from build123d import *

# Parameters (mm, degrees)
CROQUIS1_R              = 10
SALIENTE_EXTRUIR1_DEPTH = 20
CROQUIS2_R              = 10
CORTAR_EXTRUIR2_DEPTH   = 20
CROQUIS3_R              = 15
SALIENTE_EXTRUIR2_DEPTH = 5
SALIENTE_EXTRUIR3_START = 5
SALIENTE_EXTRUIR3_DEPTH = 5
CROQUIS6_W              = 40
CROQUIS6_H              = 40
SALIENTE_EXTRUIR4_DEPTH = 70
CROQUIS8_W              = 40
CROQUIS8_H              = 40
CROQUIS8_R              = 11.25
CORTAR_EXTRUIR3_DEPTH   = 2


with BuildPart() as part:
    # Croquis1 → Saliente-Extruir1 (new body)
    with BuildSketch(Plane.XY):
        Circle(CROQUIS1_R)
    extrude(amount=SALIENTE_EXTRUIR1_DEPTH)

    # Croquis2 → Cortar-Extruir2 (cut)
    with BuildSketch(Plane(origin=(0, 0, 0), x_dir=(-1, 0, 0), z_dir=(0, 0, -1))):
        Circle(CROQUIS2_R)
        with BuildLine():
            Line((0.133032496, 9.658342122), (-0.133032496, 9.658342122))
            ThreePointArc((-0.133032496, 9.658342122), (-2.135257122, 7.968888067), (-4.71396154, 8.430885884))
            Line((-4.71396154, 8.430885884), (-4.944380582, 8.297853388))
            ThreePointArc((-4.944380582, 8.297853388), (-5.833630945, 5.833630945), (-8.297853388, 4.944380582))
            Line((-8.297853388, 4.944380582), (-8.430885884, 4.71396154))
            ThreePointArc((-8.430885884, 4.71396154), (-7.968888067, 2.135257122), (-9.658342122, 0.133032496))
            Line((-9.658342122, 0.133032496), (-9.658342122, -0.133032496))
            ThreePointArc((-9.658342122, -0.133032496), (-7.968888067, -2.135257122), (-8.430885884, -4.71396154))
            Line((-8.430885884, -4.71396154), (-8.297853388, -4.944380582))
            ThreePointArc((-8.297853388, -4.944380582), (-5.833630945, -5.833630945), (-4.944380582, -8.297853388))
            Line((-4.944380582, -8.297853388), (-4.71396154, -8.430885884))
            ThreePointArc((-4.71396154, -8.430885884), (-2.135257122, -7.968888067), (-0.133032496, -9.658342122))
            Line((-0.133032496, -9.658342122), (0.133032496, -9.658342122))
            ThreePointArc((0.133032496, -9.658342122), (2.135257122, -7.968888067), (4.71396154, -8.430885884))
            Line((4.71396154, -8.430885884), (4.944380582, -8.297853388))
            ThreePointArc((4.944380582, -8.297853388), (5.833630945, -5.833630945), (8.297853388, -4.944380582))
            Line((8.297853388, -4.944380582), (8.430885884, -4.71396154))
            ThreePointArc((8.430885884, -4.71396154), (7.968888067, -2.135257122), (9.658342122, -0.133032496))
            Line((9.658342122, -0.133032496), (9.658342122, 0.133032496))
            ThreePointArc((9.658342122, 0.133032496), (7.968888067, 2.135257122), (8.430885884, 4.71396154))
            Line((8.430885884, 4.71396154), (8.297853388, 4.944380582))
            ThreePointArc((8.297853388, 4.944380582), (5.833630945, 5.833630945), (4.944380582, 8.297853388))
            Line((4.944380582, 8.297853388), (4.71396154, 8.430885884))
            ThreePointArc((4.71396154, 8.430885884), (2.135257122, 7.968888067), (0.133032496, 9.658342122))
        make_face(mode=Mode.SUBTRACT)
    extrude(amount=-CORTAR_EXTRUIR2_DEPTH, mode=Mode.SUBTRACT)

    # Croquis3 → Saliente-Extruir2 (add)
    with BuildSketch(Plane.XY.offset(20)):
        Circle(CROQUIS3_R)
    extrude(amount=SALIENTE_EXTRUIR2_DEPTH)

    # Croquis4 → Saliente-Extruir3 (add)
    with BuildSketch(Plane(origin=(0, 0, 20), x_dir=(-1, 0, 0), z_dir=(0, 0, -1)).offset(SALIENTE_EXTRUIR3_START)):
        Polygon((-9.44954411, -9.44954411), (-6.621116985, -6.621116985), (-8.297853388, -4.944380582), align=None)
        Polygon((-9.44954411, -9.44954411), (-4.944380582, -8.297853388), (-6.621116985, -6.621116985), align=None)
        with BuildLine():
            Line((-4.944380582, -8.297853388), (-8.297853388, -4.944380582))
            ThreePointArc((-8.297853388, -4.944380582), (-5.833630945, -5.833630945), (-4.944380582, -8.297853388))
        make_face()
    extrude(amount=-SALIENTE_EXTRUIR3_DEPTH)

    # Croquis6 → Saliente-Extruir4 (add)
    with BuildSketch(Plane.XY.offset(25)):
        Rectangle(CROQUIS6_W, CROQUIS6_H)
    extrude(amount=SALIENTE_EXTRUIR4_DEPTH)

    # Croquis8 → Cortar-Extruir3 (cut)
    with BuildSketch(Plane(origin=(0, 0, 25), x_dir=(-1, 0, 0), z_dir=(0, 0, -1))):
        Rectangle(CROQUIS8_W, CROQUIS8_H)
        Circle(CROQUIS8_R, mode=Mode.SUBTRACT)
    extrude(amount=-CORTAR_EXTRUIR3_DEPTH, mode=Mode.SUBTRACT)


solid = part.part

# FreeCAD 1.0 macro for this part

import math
import FreeCAD as App
import Part
import Sketcher
Q = App.Units.Quantity

doc = App.newDocument("Part")
params = doc.addObject("Spreadsheet::Sheet", "Params")
for row, (alias, value) in enumerate([
    ("sketch1_diameter", "20 mm"),
    ("pad1_length", "20 mm"),
    ("sketch2_diameter", "20 mm"),
    ("pocket1_length", "20 mm"),
    ("sketch3_diameter", "30 mm"),
    ("pad2_length", "5 mm"),
    ("pad3_length", "5 mm"),
    ("sketch5_width", "40 mm"),
    ("pad4_length", "70 mm"),
    ("sketch6_diameter", "22.5 mm"),
    ("sketch6_width", "40 mm"),
    ("pocket2_length", "2 mm"),
], start=1):
    params.set(f"A{row}", alias)
    params.set(f"B{row}", "=" + value)
    params.setAlias(f"B{row}", alias)

body = doc.addObject("PartDesign::Body", "Body")

sketch1 = body.newObject("Sketcher::SketchObject", "Sketch")
sketch1.AttachmentSupport = (doc.getObject("XY_Plane"), [""])
sketch1.MapMode = "FlatFace"
sketch1.addGeometry(Part.Circle(App.Vector(0, 0, 0), App.Vector(0, 0, 1), 10), False)
sketch1.addConstraint(Sketcher.Constraint("Coincident", 0, 3, -1, 1))
sketch1.addConstraint(Sketcher.Constraint("Diameter", 0, Q("20 mm")))
sketch1.setExpression("Constraints[1]", "Params.sketch1_diameter")
pad1 = body.newObject("PartDesign::Pad", "Pad")
pad1.Profile = sketch1
pad1.setExpression("Length", "Params.pad1_length")

sketch2 = body.newObject("Sketcher::SketchObject", "Sketch001")
sketch2.AttachmentSupport = (doc.getObject("XY_Plane"), [""])
sketch2.MapMode = "FlatFace"
sketch2.addGeometry(Part.Circle(App.Vector(0, 0, 0), App.Vector(0, 0, 1), 10), False)
sketch2.addGeometry(Part.LineSegment(App.Vector(0.133032, 9.658342, 0), App.Vector(-0.133032, 9.658342, 0)), False)
sketch2.addGeometry(Part.ArcOfCircle(Part.Circle(App.Vector(-2.93276, 10.94521, 0), App.Vector(0, 0, 1), 3.081316), math.radians(-125.314574), math.radians(-24.685426)), False)
sketch2.addGeometry(Part.LineSegment(App.Vector(-4.713962, 8.430886, 0), App.Vector(-4.944381, 8.297853, 0)), False)
sketch2.addGeometry(Part.ArcOfCircle(Part.Circle(App.Vector(-8.01245, 8.01245, 0), App.Vector(0, 0, 1), 3.081316), math.radians(-95.314574), math.radians(5.314574)), False)
sketch2.addGeometry(Part.LineSegment(App.Vector(-8.297853, 4.944381, 0), App.Vector(-8.430886, 4.713962, 0)), False)
sketch2.addGeometry(Part.ArcOfCircle(Part.Circle(App.Vector(-10.94521, 2.93276, 0), App.Vector(0, 0, 1), 3.081316), math.radians(-65.314574), math.radians(35.314574)), False)
sketch2.addGeometry(Part.LineSegment(App.Vector(-9.658342, 0.133032, 0), App.Vector(-9.658342, -0.133032, 0)), False)
sketch2.addGeometry(Part.ArcOfCircle(Part.Circle(App.Vector(-10.94521, -2.93276, 0), App.Vector(0, 0, 1), 3.081316), math.radians(-35.314574), math.radians(65.314574)), False)
sketch2.addGeometry(Part.LineSegment(App.Vector(-8.430886, -4.713962, 0), App.Vector(-8.297853, -4.944381, 0)), False)
sketch2.addGeometry(Part.ArcOfCircle(Part.Circle(App.Vector(-8.01245, -8.01245, 0), App.Vector(0, 0, 1), 3.081316), math.radians(-5.314574), math.radians(95.314574)), False)
sketch2.addGeometry(Part.LineSegment(App.Vector(-4.944381, -8.297853, 0), App.Vector(-4.713962, -8.430886, 0)), False)
sketch2.addGeometry(Part.ArcOfCircle(Part.Circle(App.Vector(-2.93276, -10.94521, 0), App.Vector(0, 0, 1), 3.081316), math.radians(24.685426), math.radians(125.314574)), False)
sketch2.addGeometry(Part.LineSegment(App.Vector(-0.133032, -9.658342, 0), App.Vector(0.133032, -9.658342, 0)), False)
sketch2.addGeometry(Part.ArcOfCircle(Part.Circle(App.Vector(2.93276, -10.94521, 0), App.Vector(0, 0, 1), 3.081316), math.radians(54.685426), math.radians(155.314574)), False)
sketch2.addGeometry(Part.LineSegment(App.Vector(4.713962, -8.430886, 0), App.Vector(4.944381, -8.297853, 0)), False)
sketch2.addGeometry(Part.ArcOfCircle(Part.Circle(App.Vector(8.01245, -8.01245, 0), App.Vector(0, 0, 1), 3.081316), math.radians(84.685426), math.radians(185.314574)), False)
sketch2.addGeometry(Part.LineSegment(App.Vector(8.297853, -4.944381, 0), App.Vector(8.430886, -4.713962, 0)), False)
sketch2.addGeometry(Part.ArcOfCircle(Part.Circle(App.Vector(10.94521, -2.93276, 0), App.Vector(0, 0, 1), 3.081316), math.radians(114.685426), math.radians(215.314574)), False)
sketch2.addGeometry(Part.LineSegment(App.Vector(9.658342, -0.133032, 0), App.Vector(9.658342, 0.133032, 0)), False)
sketch2.addGeometry(Part.ArcOfCircle(Part.Circle(App.Vector(10.94521, 2.93276, 0), App.Vector(0, 0, 1), 3.081316), math.radians(144.685426), math.radians(245.314574)), False)
sketch2.addGeometry(Part.LineSegment(App.Vector(8.430886, 4.713962, 0), App.Vector(8.297853, 4.944381, 0)), False)
sketch2.addGeometry(Part.ArcOfCircle(Part.Circle(App.Vector(8.01245, 8.01245, 0), App.Vector(0, 0, 1), 3.081316), math.radians(174.685426), math.radians(275.314574)), False)
sketch2.addGeometry(Part.LineSegment(App.Vector(4.944381, 8.297853, 0), App.Vector(4.713962, 8.430886, 0)), False)
sketch2.addGeometry(Part.ArcOfCircle(Part.Circle(App.Vector(2.93276, 10.94521, 0), App.Vector(0, 0, 1), 3.081316), math.radians(-155.314574), math.radians(-54.685426)), False)
sketch2.addConstraint(Sketcher.Constraint("Coincident", 1, 2, 2, 2))
sketch2.addConstraint(Sketcher.Constraint("Coincident", 2, 1, 3, 1))
sketch2.addConstraint(Sketcher.Constraint("Coincident", 3, 2, 4, 2))
sketch2.addConstraint(Sketcher.Constraint("Coincident", 4, 1, 5, 1))
sketch2.addConstraint(Sketcher.Constraint("Coincident", 5, 2, 6, 2))
sketch2.addConstraint(Sketcher.Constraint("Coincident", 6, 1, 7, 1))
sketch2.addConstraint(Sketcher.Constraint("Coincident", 7, 2, 8, 2))
sketch2.addConstraint(Sketcher.Constraint("Coincident", 8, 1, 9, 1))
sketch2.addConstraint(Sketcher.Constraint("Coincident", 9, 2, 10, 2))
sketch2.addConstraint(Sketcher.Constraint("Coincident", 10, 1, 11, 1))
sketch2.addConstraint(Sketcher.Constraint("Coincident", 11, 2, 12, 2))
sketch2.addConstraint(Sketcher.Constraint("Coincident", 12, 1, 13, 1))
sketch2.addConstraint(Sketcher.Constraint("Coincident", 13, 2, 14, 2))
sketch2.addConstraint(Sketcher.Constraint("Coincident", 14, 1, 15, 1))
sketch2.addConstraint(Sketcher.Constraint("Coincident", 15, 2, 16, 2))
sketch2.addConstraint(Sketcher.Constraint("Coincident", 16, 1, 17, 1))
sketch2.addConstraint(Sketcher.Constraint("Coincident", 17, 2, 18, 2))
sketch2.addConstraint(Sketcher.Constraint("Coincident", 18, 1, 19, 1))
sketch2.addConstraint(Sketcher.Constraint("Coincident", 19, 2, 20, 2))
sketch2.addConstraint(Sketcher.Constraint("Coincident", 20, 1, 21, 1))
sketch2.addConstraint(Sketcher.Constraint("Coincident", 21, 2, 22, 2))
sketch2.addConstraint(Sketcher.Constraint("Coincident", 22, 1, 23, 1))
sketch2.addConstraint(Sketcher.Constraint("Coincident", 23, 2, 24, 2))
sketch2.addConstraint(Sketcher.Constraint("Coincident", 24, 1, 1, 1))
sketch2.addConstraint(Sketcher.Constraint("Horizontal", 1))
sketch2.addConstraint(Sketcher.Constraint("Vertical", 7))
sketch2.addConstraint(Sketcher.Constraint("Horizontal", 13))
sketch2.addConstraint(Sketcher.Constraint("Vertical", 19))
sketch2.addConstraint(Sketcher.Constraint("Coincident", 0, 3, -1, 1))
sketch2.addConstraint(Sketcher.Constraint("Equal", 2, 4))
sketch2.addConstraint(Sketcher.Constraint("Equal", 4, 6))
sketch2.addConstraint(Sketcher.Constraint("Equal", 6, 8))
sketch2.addConstraint(Sketcher.Constraint("Equal", 8, 10))
sketch2.addConstraint(Sketcher.Constraint("Equal", 10, 12))
sketch2.addConstraint(Sketcher.Constraint("Equal", 12, 14))
sketch2.addConstraint(Sketcher.Constraint("Equal", 14, 16))
sketch2.addConstraint(Sketcher.Constraint("Equal", 16, 18))
sketch2.addConstraint(Sketcher.Constraint("Equal", 18, 20))
sketch2.addConstraint(Sketcher.Constraint("Equal", 20, 22))
sketch2.addConstraint(Sketcher.Constraint("Equal", 22, 24))
sketch2.addConstraint(Sketcher.Constraint("Symmetric", 2, 3, 14, 3, -1, 1))
sketch2.addConstraint(Sketcher.Constraint("Symmetric", 4, 3, 16, 3, -1, 1))
sketch2.addConstraint(Sketcher.Constraint("Symmetric", 6, 3, 18, 3, -1, 1))
sketch2.addConstraint(Sketcher.Constraint("Symmetric", 8, 3, 20, 3, -1, 1))
sketch2.addConstraint(Sketcher.Constraint("Symmetric", 10, 3, 22, 3, -1, 1))
sketch2.addConstraint(Sketcher.Constraint("Symmetric", 12, 3, 24, 3, -1, 1))
sketch2.addConstraint(Sketcher.Constraint("Symmetric", 12, 3, 14, 3, -2))
sketch2.addConstraint(Sketcher.Constraint("Symmetric", 10, 3, 16, 3, -2))
sketch2.addConstraint(Sketcher.Constraint("Symmetric", 8, 3, 18, 3, -2))
sketch2.addConstraint(Sketcher.Constraint("Perpendicular", 3, 9))
sketch2.addConstraint(Sketcher.Constraint("Perpendicular", 5, 11))
sketch2.addConstraint(Sketcher.Constraint("Perpendicular", 9, 15))
sketch2.addConstraint(Sketcher.Constraint("Perpendicular", 11, 17))
sketch2.addConstraint(Sketcher.Constraint("Perpendicular", 15, 21))
sketch2.addConstraint(Sketcher.Constraint("Perpendicular", 17, 23))
sketch2.addConstraint(Sketcher.Constraint("Horizontal", 11, 2, 14, 1))
sketch2.addConstraint(Sketcher.Constraint("Horizontal", 10, 1, 15, 2))
sketch2.addConstraint(Sketcher.Constraint("Horizontal", 9, 2, 16, 1))
sketch2.addConstraint(Sketcher.Constraint("Horizontal", 7, 2, 18, 1))
sketch2.addConstraint(Sketcher.Constraint("Horizontal", 5, 2, 20, 1))
sketch2.addConstraint(Sketcher.Constraint("Horizontal", 3, 2, 22, 1))
sketch2.addConstraint(Sketcher.Constraint("Vertical", 5, 2, 8, 1))
sketch2.addConstraint(Sketcher.Constraint("Vertical", 3, 2, 10, 1))
sketch2.addConstraint(Sketcher.Constraint("Vertical", 1, 2, 12, 1))
sketch2.addConstraint(Sketcher.Constraint("Equal", 13, 7))
sketch2.addConstraint(Sketcher.Constraint("Equal", 3, 5))
sketch2.addConstraint(Sketcher.Constraint("Diameter", 0, Q("20 mm")))
sketch2.addConstraint(Sketcher.Constraint("Angle", 3, Q("-150 deg")))
sketch2.addConstraint(Sketcher.Constraint("Radius", 2, Q("3.081316 mm")))
sketch2.addConstraint(Sketcher.Constraint("DistanceY", 10, 3, 4, 3, Q("16.0249 mm")))
sketch2.addConstraint(Sketcher.Constraint("DistanceX", 10, 3, 16, 3, Q("16.0249 mm")))
sketch2.addConstraint(Sketcher.Constraint("DistanceX", 2, 1, 2, 3, Q("1.781201 mm")))
sketch2.addConstraint(Sketcher.Constraint("DistanceY", 6, 3, 5, 2, Q("1.781201 mm")))
sketch2.addConstraint(Sketcher.Constraint("DistanceX", 1, 2, 1, 1, Q("0.266065 mm")))
sketch2.addConstraint(Sketcher.Constraint("DistanceX", 2, 3, -1, 1, Q("2.93276 mm")))
sketch2.addConstraint(Sketcher.Constraint("DistanceY", -1, 1, 2, 3, Q("10.94521 mm")))
sketch2.addConstraint(Sketcher.Constraint("DistanceX", 6, 3, -1, 1, Q("10.94521 mm")))
sketch2.setExpression("Constraints[66]", "Params.sketch2_diameter")
pocket1 = body.newObject("PartDesign::Pocket", "Pocket")
pocket1.Profile = sketch2
pocket1.setExpression("Length", "Params.pocket1_length")
pocket1.Reversed = True

sketch3 = body.newObject("Sketcher::SketchObject", "Sketch002")
sketch3.AttachmentSupport = (doc.getObject("XY_Plane"), [""])
sketch3.MapMode = "FlatFace"
sketch3.AttachmentOffset = App.Placement(App.Vector(0, 0, 20), App.Rotation())
sketch3.addGeometry(Part.Circle(App.Vector(0, 0, 0), App.Vector(0, 0, 1), 15), False)
sketch3.addConstraint(Sketcher.Constraint("Coincident", 0, 3, -1, 1))
sketch3.addConstraint(Sketcher.Constraint("Diameter", 0, Q("30 mm")))
sketch3.setExpression("Constraints[1]", "Params.sketch3_diameter")
pad2 = body.newObject("PartDesign::Pad", "Pad001")
pad2.Profile = sketch3
pad2.setExpression("Length", "Params.pad2_length")

sketch4 = body.newObject("Sketcher::SketchObject", "Sketch003")
sketch4.AttachmentSupport = (doc.getObject("XY_Plane"), [""])
sketch4.MapMode = "FlatFace"
sketch4.AttachmentOffset = App.Placement(App.Vector(0, 0, 15), App.Rotation())
sketch4.addGeometry(Part.LineSegment(App.Vector(8.297853, -4.944381, 0), App.Vector(9.449544, -9.449544, 0)), False)
sketch4.addGeometry(Part.LineSegment(App.Vector(9.449544, -9.449544, 0), App.Vector(4.944381, -8.297853, 0)), False)
sketch4.addGeometry(Part.ArcOfCircle(Part.Circle(App.Vector(8.01245, -8.01245, 0), App.Vector(0, 0, 1), 3.081316), math.radians(84.685426), math.radians(185.314574)), False)
sketch4.addConstraint(Sketcher.Constraint("Coincident", 0, 2, 1, 1))
sketch4.addConstraint(Sketcher.Constraint("Coincident", 1, 2, 2, 2))
sketch4.addConstraint(Sketcher.Constraint("Coincident", 2, 1, 0, 1))
sketch4.addConstraint(Sketcher.Constraint("Equal", 0, 1))
sketch4.addConstraint(Sketcher.Constraint("Radius", 2, Q("3.081316 mm")))
sketch4.addConstraint(Sketcher.Constraint("Distance", 0, Q("4.650042 mm")))
sketch4.addConstraint(Sketcher.Constraint("DistanceX", -1, 1, 2, 3, Q("8.01245 mm")))
sketch4.addConstraint(Sketcher.Constraint("DistanceY", 2, 3, -1, 1, Q("8.01245 mm")))
sketch4.addConstraint(Sketcher.Constraint("DistanceX", -1, 1, 1, 2, Q("4.944381 mm")))
sketch4.addConstraint(Sketcher.Constraint("DistanceY", 2, 1, -1, 1, Q("4.944381 mm")))
pad3 = body.newObject("PartDesign::Pad", "Pad002")
pad3.Profile = sketch4
pad3.setExpression("Length", "Params.pad3_length")

sketch5 = body.newObject("Sketcher::SketchObject", "Sketch004")
sketch5.AttachmentSupport = (doc.getObject("XY_Plane"), [""])
sketch5.MapMode = "FlatFace"
sketch5.AttachmentOffset = App.Placement(App.Vector(0, 0, 25), App.Rotation())
sketch5.addGeometry(Part.LineSegment(App.Vector(-20, 20, 0), App.Vector(-20, -20, 0)), False)
sketch5.addGeometry(Part.LineSegment(App.Vector(-20, -20, 0), App.Vector(20, -20, 0)), False)
sketch5.addGeometry(Part.LineSegment(App.Vector(20, -20, 0), App.Vector(20, 20, 0)), False)
sketch5.addGeometry(Part.LineSegment(App.Vector(20, 20, 0), App.Vector(-20, 20, 0)), False)
sketch5.addConstraint(Sketcher.Constraint("Coincident", 0, 2, 1, 1))
sketch5.addConstraint(Sketcher.Constraint("Coincident", 1, 2, 2, 1))
sketch5.addConstraint(Sketcher.Constraint("Coincident", 2, 2, 3, 1))
sketch5.addConstraint(Sketcher.Constraint("Coincident", 3, 2, 0, 1))
sketch5.addConstraint(Sketcher.Constraint("Vertical", 0))
sketch5.addConstraint(Sketcher.Constraint("Horizontal", 1))
sketch5.addConstraint(Sketcher.Constraint("Vertical", 2))
sketch5.addConstraint(Sketcher.Constraint("Horizontal", 3))
sketch5.addConstraint(Sketcher.Constraint("Symmetric", 0, 2, 2, 2, -1, 1))
sketch5.addConstraint(Sketcher.Constraint("Equal", 3, 0))
sketch5.addConstraint(Sketcher.Constraint("DistanceX", 1, 1, 1, 2, Q("40 mm")))
sketch5.setExpression("Constraints[10]", "Params.sketch5_width")
pad4 = body.newObject("PartDesign::Pad", "Pad003")
pad4.Profile = sketch5
pad4.setExpression("Length", "Params.pad4_length")

sketch6 = body.newObject("Sketcher::SketchObject", "Sketch005")
sketch6.AttachmentSupport = (doc.getObject("XY_Plane"), [""])
sketch6.MapMode = "FlatFace"
sketch6.AttachmentOffset = App.Placement(App.Vector(0, 0, 25), App.Rotation())
sketch6.addGeometry(Part.LineSegment(App.Vector(20, 20, 0), App.Vector(20, -20, 0)), False)
sketch6.addGeometry(Part.LineSegment(App.Vector(20, -20, 0), App.Vector(-20, -20, 0)), False)
sketch6.addGeometry(Part.LineSegment(App.Vector(-20, -20, 0), App.Vector(-20, 20, 0)), False)
sketch6.addGeometry(Part.LineSegment(App.Vector(-20, 20, 0), App.Vector(20, 20, 0)), False)
sketch6.addGeometry(Part.Circle(App.Vector(0, 0, 0), App.Vector(0, 0, 1), 11.25), False)
sketch6.addConstraint(Sketcher.Constraint("Coincident", 0, 2, 1, 1))
sketch6.addConstraint(Sketcher.Constraint("Coincident", 1, 2, 2, 1))
sketch6.addConstraint(Sketcher.Constraint("Coincident", 2, 2, 3, 1))
sketch6.addConstraint(Sketcher.Constraint("Coincident", 3, 2, 0, 1))
sketch6.addConstraint(Sketcher.Constraint("Vertical", 0))
sketch6.addConstraint(Sketcher.Constraint("Horizontal", 1))
sketch6.addConstraint(Sketcher.Constraint("Vertical", 2))
sketch6.addConstraint(Sketcher.Constraint("Horizontal", 3))
sketch6.addConstraint(Sketcher.Constraint("Coincident", 4, 3, -1, 1))
sketch6.addConstraint(Sketcher.Constraint("Symmetric", 0, 2, 2, 2, -1, 1))
sketch6.addConstraint(Sketcher.Constraint("Equal", 3, 0))
sketch6.addConstraint(Sketcher.Constraint("Diameter", 4, Q("22.5 mm")))
sketch6.addConstraint(Sketcher.Constraint("DistanceX", 1, 2, 1, 1, Q("40 mm")))
sketch6.setExpression("Constraints[11]", "Params.sketch6_diameter")
sketch6.setExpression("Constraints[12]", "Params.sketch6_width")
pocket2 = body.newObject("PartDesign::Pocket", "Pocket001")
pocket2.Profile = sketch6
pocket2.setExpression("Length", "Params.pocket2_length")
pocket2.Reversed = True

doc.recompute()
